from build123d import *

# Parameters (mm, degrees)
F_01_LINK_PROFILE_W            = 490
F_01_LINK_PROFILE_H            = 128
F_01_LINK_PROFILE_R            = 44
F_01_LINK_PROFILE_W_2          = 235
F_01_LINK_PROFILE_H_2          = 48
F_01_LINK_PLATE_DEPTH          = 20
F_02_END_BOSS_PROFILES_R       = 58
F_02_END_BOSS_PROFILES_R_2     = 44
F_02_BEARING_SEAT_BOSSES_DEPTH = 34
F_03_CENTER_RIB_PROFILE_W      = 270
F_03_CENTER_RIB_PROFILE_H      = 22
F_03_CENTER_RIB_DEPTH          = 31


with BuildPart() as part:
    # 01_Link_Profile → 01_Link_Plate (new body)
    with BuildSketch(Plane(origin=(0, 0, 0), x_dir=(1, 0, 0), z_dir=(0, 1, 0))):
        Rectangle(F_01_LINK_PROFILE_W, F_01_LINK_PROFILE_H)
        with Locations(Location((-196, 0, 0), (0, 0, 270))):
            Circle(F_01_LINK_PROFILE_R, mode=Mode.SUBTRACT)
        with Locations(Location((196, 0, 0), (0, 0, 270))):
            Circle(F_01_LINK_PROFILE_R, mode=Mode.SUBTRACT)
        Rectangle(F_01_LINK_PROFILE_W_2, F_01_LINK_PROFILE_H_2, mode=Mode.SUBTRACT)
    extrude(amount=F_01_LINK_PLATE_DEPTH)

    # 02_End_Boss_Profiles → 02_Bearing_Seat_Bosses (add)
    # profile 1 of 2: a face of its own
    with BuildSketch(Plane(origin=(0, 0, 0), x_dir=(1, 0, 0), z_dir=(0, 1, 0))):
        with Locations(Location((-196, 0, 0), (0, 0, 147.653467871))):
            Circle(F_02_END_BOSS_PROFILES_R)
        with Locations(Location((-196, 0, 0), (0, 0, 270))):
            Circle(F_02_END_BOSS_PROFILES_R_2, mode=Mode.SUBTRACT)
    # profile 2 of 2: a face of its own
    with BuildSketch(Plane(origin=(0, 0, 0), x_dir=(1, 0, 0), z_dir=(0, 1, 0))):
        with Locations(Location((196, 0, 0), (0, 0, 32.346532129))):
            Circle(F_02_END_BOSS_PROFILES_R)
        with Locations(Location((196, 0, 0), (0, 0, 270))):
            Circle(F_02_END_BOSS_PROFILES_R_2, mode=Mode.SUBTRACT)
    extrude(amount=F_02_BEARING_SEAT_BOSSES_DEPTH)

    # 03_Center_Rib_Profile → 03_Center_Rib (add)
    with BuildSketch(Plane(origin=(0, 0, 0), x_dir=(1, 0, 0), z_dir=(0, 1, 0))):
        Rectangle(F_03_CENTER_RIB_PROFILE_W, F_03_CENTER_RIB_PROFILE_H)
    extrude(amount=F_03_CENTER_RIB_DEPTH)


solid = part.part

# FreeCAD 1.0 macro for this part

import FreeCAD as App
import Part
import Sketcher
from FreeCAD import Vector
Q = App.Units.Quantity

doc = App.newDocument("Part")
body = doc.addObject("PartDesign::Body", "Body")

# Sketch on XZ plane
sketch1 = body.newObject("Sketcher::SketchObject", "Sketch")
sketch1.AttachmentSupport = (doc.getObject("XZ_Plane"), [""])
sketch1.MapMode = "FlatFace"
sketch1.addGeometry(Part.LineSegment(Vector(-245, -64, 0), Vector(-245, 64, 0)), False)
sketch1.addGeometry(Part.LineSegment(Vector(-245, 64, 0), Vector(245, 64, 0)), False)
sketch1.addGeometry(Part.LineSegment(Vector(245, 64, 0), Vector(245, -64, 0)), False)
sketch1.addGeometry(Part.LineSegment(Vector(245, -64, 0), Vector(-245, -64, 0)), False)
sketch1.addGeometry(Part.Circle(Vector(-196, 0, 0), Vector(0, 0, 1), 44), False)
sketch1.addGeometry(Part.LineSegment(Vector(117.5, 24, 0), Vector(-117.5, 24, 0)), False)
sketch1.addGeometry(Part.LineSegment(Vector(-117.5, 24, 0), Vector(-117.5, -24, 0)), False)
sketch1.addGeometry(Part.LineSegment(Vector(-117.5, -24, 0), Vector(117.5, -24, 0)), False)
sketch1.addGeometry(Part.LineSegment(Vector(117.5, -24, 0), Vector(117.5, 24, 0)), False)
sketch1.addGeometry(Part.Circle(Vector(196, 0, 0), Vector(0, 0, 1), 44), False)
sketch1.addConstraint(Sketcher.Constraint("Coincident", 0, 2, 1, 1))
sketch1.addConstraint(Sketcher.Constraint("Coincident", 1, 2, 2, 1))
sketch1.addConstraint(Sketcher.Constraint("Coincident", 2, 2, 3, 1))
sketch1.addConstraint(Sketcher.Constraint("Coincident", 3, 2, 0, 1))
sketch1.addConstraint(Sketcher.Constraint("Coincident", 5, 2, 6, 1))
sketch1.addConstraint(Sketcher.Constraint("Coincident", 6, 2, 7, 1))
sketch1.addConstraint(Sketcher.Constraint("Coincident", 7, 2, 8, 1))
sketch1.addConstraint(Sketcher.Constraint("Coincident", 8, 2, 5, 1))
sketch1.addConstraint(Sketcher.Constraint("Vertical", 0))
sketch1.addConstraint(Sketcher.Constraint("Horizontal", 1))
sketch1.addConstraint(Sketcher.Constraint("Vertical", 2))
sketch1.addConstraint(Sketcher.Constraint("Horizontal", 3))
sketch1.addConstraint(Sketcher.Constraint("Horizontal", 5))
sketch1.addConstraint(Sketcher.Constraint("Vertical", 6))
sketch1.addConstraint(Sketcher.Constraint("Horizontal", 7))
sketch1.addConstraint(Sketcher.Constraint("Vertical", 8))
sketch1.addConstraint(Sketcher.Constraint("Equal", 4, 9))
sketch1.addConstraint(Sketcher.Constraint("Symmetric", 4, 3, 9, 3, -1, 1))
sketch1.addConstraint(Sketcher.Constraint("Symmetric", 0, 2, 2, 2, -1, 1))
sketch1.addConstraint(Sketcher.Constraint("Symmetric", 5, 2, 7, 2, -1, 1))
sketch1.addConstraint(Sketcher.Constraint("PointOnObject", 4, 3, -1))
sketch1.addConstraint(Sketcher.Constraint("Diameter", 4, Q("88 mm")))
sketch1.addConstraint(Sketcher.Constraint("DistanceX", 1, 1, 1, 2, Q("490 mm")))
sketch1.addConstraint(Sketcher.Constraint("DistanceX", 5, 2, 5, 1, Q("235 mm")))
sketch1.addConstraint(Sketcher.Constraint("DistanceY", 0, 1, 0, 2, Q("128 mm")))
sketch1.addConstraint(Sketcher.Constraint("DistanceY", 6, 2, 6, 1, Q("48 mm")))
sketch1.addConstraint(Sketcher.Constraint("DistanceX", 4, 3, -1, 1, Q("196 mm")))
pad1 = body.newObject("PartDesign::Pad", "Pad")
pad1.Profile = sketch1
pad1.Length = 20
pad1.Reversed = True

# Sketch on XZ plane
sketch2 = body.newObject("Sketcher::SketchObject", "Sketch001")
sketch2.AttachmentSupport = (doc.getObject("XZ_Plane"), [""])
sketch2.MapMode = "FlatFace"
sketch2.addGeometry(Part.Circle(Vector(-196, 0, 0), Vector(0, 0, 1), 58), False)
sketch2.addGeometry(Part.Circle(Vector(-196, 0, 0), Vector(0, 0, 1), 44), False)
sketch2.addGeometry(Part.Circle(Vector(196, 0, 0), Vector(0, 0, 1), 58), False)
sketch2.addGeometry(Part.Circle(Vector(196, 0, 0), Vector(0, 0, 1), 44), False)
sketch2.addConstraint(Sketcher.Constraint("Coincident", 1, 3, 0, 3))
sketch2.addConstraint(Sketcher.Constraint("Coincident", 3, 3, 2, 3))
sketch2.addConstraint(Sketcher.Constraint("Equal", 0, 2))
sketch2.addConstraint(Sketcher.Constraint("Equal", 1, 3))
sketch2.addConstraint(Sketcher.Constraint("Symmetric", 0, 3, 2, 3, -1, 1))
sketch2.addConstraint(Sketcher.Constraint("PointOnObject", 0, 3, -1))
sketch2.addConstraint(Sketcher.Constraint("Diameter", 0, Q("116 mm")))
sketch2.addConstraint(Sketcher.Constraint("Diameter", 1, Q("88 mm")))
sketch2.addConstraint(Sketcher.Constraint("DistanceX", 0, 3, -1, 1, Q("196 mm")))
pad2 = body.newObject("PartDesign::Pad", "Pad001")
pad2.Profile = sketch2
pad2.Length = 34
pad2.Reversed = True

# Sketch on XZ plane
sketch3 = body.newObject("Sketcher::SketchObject", "Sketch002")
sketch3.AttachmentSupport = (doc.getObject("XZ_Plane"), [""])
sketch3.MapMode = "FlatFace"
sketch3.addGeometry(Part.LineSegment(Vector(-135, -11, 0), Vector(-135, 11, 0)), False)
sketch3.addGeometry(Part.LineSegment(Vector(-135, 11, 0), Vector(135, 11, 0)), False)
sketch3.addGeometry(Part.LineSegment(Vector(135, 11, 0), Vector(135, -11, 0)), False)
sketch3.addGeometry(Part.LineSegment(Vector(135, -11, 0), Vector(-135, -11, 0)), False)
sketch3.addConstraint(Sketcher.Constraint("Coincident", 0, 2, 1, 1))
sketch3.addConstraint(Sketcher.Constraint("Coincident", 1, 2, 2, 1))
sketch3.addConstraint(Sketcher.Constraint("Coincident", 2, 2, 3, 1))
sketch3.addConstraint(Sketcher.Constraint("Coincident", 3, 2, 0, 1))
sketch3.addConstraint(Sketcher.Constraint("Vertical", 0))
sketch3.addConstraint(Sketcher.Constraint("Horizontal", 1))
sketch3.addConstraint(Sketcher.Constraint("Vertical", 2))
sketch3.addConstraint(Sketcher.Constraint("Horizontal", 3))
sketch3.addConstraint(Sketcher.Constraint("Symmetric", 0, 2, 2, 2, -1, 1))
sketch3.addConstraint(Sketcher.Constraint("DistanceX", 1, 1, 1, 2, Q("270 mm")))
sketch3.addConstraint(Sketcher.Constraint("DistanceY", 0, 1, 0, 2, Q("22 mm")))
pad3 = body.newObject("PartDesign::Pad", "Pad002")
pad3.Profile = sketch3
pad3.Length = 31
pad3.Reversed = True

doc.recompute()
